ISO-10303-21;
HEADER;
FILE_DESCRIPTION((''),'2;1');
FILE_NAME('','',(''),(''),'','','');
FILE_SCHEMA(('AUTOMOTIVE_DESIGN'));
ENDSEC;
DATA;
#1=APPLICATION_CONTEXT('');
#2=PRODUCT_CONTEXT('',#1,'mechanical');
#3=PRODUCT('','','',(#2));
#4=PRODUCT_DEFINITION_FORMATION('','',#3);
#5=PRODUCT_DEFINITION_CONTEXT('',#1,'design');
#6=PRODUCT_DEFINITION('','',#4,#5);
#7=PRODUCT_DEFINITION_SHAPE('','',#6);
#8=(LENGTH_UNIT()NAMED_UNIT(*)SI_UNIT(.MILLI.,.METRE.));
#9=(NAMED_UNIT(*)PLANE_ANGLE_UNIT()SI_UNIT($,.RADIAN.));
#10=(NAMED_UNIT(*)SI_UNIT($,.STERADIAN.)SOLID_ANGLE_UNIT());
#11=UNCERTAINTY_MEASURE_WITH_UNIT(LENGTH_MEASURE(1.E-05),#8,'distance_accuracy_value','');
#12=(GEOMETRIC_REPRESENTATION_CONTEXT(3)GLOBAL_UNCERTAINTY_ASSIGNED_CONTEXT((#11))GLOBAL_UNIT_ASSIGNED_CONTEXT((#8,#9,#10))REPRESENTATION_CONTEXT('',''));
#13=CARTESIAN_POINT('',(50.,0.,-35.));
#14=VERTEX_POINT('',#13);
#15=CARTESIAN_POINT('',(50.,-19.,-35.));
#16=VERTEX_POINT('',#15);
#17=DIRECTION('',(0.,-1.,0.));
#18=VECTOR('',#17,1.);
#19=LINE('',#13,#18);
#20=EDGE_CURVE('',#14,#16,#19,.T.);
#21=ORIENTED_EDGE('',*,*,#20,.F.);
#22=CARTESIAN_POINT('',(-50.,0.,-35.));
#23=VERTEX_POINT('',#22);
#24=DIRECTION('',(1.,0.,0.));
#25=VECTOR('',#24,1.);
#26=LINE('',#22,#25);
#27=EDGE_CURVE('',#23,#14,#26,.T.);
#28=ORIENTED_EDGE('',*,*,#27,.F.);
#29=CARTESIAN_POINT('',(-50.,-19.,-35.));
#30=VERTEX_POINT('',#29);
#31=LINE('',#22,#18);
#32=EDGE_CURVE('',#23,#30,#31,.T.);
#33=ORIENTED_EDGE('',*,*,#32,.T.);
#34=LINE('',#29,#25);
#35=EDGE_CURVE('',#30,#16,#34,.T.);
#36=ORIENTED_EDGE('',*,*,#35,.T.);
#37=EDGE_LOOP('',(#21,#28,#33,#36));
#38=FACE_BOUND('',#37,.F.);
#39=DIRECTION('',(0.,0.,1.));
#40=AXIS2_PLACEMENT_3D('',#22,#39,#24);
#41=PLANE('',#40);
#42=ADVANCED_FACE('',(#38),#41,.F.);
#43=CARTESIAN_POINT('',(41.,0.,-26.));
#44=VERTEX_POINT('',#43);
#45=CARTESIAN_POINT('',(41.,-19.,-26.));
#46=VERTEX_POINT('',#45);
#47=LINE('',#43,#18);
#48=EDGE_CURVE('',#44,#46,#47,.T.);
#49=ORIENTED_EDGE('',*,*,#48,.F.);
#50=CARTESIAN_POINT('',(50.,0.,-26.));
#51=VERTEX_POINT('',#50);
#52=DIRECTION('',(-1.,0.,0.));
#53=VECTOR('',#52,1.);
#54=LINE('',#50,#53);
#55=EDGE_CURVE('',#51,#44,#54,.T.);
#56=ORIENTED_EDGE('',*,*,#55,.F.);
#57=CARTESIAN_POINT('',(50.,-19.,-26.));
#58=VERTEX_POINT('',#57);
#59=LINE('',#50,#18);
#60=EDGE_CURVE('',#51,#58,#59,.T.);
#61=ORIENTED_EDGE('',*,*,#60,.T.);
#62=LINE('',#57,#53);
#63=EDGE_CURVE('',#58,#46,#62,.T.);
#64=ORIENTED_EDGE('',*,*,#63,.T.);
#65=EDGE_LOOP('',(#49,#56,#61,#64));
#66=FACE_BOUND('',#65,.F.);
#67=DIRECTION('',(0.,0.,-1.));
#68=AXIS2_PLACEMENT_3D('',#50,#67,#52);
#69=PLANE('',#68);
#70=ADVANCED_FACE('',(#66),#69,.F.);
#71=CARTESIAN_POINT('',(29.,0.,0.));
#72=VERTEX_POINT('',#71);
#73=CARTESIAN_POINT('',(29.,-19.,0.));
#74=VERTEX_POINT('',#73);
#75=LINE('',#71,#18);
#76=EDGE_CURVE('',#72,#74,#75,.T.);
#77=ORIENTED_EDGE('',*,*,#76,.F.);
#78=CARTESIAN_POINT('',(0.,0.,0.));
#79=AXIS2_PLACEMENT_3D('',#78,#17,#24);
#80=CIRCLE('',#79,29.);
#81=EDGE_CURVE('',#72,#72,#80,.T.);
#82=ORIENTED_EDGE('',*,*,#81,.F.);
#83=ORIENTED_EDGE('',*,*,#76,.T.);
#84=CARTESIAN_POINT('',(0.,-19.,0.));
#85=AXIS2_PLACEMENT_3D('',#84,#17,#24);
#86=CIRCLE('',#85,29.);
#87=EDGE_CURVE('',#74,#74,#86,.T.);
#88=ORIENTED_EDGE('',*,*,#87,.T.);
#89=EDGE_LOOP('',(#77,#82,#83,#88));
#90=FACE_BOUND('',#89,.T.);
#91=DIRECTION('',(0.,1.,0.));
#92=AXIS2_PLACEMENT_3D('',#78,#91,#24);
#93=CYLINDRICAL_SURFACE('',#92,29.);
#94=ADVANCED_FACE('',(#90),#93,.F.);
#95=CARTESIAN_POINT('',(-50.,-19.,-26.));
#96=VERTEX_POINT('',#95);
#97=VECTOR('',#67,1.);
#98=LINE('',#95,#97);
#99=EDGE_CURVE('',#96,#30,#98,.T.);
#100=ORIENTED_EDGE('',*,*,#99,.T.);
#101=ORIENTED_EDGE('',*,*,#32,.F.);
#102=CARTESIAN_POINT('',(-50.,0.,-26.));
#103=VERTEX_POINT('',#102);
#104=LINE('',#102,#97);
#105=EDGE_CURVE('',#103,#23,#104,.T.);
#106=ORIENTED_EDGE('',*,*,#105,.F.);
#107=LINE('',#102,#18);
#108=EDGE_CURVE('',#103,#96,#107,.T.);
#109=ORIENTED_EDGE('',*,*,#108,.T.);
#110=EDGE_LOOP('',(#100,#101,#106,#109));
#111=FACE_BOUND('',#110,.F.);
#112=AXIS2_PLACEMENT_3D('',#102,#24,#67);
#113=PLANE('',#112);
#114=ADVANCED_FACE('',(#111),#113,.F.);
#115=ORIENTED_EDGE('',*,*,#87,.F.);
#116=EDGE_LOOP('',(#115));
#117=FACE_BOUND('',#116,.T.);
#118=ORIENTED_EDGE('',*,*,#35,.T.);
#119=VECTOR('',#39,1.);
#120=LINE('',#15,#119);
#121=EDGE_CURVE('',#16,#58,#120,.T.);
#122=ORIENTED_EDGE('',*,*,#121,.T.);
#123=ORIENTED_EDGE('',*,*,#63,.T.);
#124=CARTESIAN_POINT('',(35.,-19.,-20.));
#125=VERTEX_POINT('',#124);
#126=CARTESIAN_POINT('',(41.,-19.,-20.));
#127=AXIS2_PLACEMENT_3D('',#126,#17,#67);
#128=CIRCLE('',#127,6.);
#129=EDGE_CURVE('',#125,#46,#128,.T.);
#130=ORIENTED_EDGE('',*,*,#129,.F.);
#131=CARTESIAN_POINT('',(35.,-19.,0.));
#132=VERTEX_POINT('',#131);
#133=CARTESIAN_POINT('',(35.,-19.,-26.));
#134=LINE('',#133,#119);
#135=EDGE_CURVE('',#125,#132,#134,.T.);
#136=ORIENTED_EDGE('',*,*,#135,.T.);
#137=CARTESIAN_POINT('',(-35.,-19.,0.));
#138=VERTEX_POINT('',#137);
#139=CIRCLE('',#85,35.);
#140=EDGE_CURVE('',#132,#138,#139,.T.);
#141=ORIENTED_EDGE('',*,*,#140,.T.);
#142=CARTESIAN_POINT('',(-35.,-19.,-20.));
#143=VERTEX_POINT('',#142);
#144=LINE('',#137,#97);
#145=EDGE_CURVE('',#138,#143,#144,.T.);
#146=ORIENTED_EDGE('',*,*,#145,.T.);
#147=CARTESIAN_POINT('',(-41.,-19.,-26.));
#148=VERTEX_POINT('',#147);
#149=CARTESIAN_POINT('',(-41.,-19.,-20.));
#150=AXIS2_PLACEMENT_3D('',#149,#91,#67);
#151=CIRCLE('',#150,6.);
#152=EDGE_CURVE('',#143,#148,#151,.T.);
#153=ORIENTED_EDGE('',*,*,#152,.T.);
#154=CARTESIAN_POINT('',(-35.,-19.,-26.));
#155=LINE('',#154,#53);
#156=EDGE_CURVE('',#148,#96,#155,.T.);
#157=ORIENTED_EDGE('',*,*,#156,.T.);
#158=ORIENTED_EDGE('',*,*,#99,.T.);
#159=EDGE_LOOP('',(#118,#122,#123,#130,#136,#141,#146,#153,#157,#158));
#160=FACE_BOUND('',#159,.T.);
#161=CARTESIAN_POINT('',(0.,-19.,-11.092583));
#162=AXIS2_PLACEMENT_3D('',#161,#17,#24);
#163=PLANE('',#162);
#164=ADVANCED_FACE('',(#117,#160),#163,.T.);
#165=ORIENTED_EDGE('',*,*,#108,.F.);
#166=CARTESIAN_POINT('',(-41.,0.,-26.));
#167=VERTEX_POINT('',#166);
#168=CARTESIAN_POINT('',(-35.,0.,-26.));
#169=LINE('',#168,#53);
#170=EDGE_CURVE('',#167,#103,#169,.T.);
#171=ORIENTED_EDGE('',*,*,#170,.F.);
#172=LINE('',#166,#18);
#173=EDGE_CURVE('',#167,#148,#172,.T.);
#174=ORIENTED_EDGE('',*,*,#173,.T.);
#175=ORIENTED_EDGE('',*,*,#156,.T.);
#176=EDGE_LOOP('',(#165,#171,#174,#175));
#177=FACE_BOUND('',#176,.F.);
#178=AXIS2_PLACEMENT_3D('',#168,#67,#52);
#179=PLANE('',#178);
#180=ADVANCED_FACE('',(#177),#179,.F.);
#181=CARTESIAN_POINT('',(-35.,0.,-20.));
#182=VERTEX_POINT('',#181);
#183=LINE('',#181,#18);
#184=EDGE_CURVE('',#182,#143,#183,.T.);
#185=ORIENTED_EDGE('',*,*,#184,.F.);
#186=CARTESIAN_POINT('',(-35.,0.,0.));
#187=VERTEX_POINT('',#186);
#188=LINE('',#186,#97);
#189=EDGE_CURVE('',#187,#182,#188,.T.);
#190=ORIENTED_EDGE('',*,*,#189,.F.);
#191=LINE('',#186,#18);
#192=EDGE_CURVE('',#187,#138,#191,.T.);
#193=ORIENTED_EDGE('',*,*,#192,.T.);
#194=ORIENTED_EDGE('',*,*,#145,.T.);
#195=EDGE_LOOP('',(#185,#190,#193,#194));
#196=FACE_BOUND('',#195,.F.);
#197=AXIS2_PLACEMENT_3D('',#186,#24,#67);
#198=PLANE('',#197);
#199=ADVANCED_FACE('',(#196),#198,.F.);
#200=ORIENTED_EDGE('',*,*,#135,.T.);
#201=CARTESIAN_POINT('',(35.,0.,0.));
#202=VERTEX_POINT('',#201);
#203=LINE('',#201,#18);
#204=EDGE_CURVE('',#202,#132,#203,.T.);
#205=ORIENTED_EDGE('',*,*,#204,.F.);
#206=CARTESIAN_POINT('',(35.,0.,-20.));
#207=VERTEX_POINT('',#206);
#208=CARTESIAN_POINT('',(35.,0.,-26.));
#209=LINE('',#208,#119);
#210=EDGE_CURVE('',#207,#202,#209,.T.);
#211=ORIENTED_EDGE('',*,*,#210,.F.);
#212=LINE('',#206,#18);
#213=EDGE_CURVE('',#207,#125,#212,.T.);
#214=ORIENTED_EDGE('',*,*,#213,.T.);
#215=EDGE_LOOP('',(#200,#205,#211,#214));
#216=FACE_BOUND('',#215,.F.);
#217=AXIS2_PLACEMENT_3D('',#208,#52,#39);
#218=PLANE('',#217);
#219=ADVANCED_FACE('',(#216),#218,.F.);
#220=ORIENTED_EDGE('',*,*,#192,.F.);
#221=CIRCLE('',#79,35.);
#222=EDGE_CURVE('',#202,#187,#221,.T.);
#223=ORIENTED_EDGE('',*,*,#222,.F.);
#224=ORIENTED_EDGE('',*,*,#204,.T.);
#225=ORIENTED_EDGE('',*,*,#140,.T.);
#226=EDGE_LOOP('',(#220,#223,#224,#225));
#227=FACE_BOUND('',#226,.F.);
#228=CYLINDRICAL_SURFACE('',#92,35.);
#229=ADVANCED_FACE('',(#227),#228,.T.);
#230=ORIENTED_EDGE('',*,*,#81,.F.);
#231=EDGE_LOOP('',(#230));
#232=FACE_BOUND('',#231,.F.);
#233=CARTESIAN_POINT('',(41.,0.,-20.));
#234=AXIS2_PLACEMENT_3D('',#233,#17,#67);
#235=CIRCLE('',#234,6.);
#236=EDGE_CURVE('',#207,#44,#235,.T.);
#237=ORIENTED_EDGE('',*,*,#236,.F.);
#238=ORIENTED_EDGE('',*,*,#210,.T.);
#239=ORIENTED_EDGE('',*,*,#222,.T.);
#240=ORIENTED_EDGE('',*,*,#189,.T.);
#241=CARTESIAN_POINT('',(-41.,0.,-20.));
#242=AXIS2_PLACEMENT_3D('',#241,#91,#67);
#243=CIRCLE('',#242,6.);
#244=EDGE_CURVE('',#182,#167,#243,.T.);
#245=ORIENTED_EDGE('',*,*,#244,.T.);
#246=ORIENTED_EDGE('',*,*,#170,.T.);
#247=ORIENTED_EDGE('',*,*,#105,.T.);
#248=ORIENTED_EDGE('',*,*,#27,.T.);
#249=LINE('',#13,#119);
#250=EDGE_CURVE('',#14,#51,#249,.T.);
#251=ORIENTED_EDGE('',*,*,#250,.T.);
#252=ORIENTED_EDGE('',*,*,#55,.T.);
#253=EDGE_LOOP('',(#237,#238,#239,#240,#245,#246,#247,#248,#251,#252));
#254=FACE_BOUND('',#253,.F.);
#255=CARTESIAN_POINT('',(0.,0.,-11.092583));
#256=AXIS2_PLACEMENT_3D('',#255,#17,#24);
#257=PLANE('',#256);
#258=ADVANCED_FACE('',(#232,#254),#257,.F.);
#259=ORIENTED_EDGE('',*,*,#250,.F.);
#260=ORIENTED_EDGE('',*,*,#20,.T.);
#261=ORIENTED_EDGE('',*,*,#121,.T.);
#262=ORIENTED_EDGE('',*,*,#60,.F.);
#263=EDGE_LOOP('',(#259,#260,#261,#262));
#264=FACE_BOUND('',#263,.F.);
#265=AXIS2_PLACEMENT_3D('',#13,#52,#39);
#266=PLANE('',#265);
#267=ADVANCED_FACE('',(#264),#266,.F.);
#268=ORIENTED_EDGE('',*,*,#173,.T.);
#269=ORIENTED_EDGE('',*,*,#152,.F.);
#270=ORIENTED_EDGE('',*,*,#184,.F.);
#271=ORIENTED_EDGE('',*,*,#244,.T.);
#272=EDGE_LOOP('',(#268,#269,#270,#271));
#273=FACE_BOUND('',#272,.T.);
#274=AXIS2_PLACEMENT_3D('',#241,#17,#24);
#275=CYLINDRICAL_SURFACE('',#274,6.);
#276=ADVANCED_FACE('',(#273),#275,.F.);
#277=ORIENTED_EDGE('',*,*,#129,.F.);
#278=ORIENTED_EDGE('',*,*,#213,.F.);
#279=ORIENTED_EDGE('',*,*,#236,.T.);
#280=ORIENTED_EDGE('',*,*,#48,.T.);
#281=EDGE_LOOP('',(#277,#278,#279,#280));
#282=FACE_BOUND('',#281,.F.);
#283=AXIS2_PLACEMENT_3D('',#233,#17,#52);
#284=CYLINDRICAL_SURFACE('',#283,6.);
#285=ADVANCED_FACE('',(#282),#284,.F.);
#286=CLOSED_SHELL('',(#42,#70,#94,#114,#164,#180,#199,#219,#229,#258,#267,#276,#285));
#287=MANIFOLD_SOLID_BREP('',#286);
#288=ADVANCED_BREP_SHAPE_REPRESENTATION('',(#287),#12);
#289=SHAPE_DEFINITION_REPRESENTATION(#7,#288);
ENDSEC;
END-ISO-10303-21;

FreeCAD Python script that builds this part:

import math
import FreeCAD as App
import Part
import Sketcher


def edges_at(feature, points):
    """Names of the edges that pass closest to the given points."""
    edges = feature.Shape.Edges
    near = lambda p: min(range(len(edges)), key=lambda i: edges[i].distToShape(Part.Vertex(*p))[0])
    return sorted({f"Edge{near(p) + 1}" for p in points})

doc = App.newDocument("Part")
body = doc.addObject("PartDesign::Body", "Body")

# Sketch on XZ plane
sketch1 = doc.addObject("Sketcher::SketchObject", "Sketch")
body.addObject(sketch1)
sketch1.AttachmentSupport = (doc.XZ_Plane, [""])
sketch1.MapMode = "FlatFace"
sketch1.addGeometry([
    Part.LineSegment(App.Vector(35, -26, 0), App.Vector(35, 0, 0)),  # 0
    Part.ArcOfCircle(Part.Circle(App.Vector(0, 0, 0), App.Vector(0, 0, 1), 35), math.radians(0), math.radians(180)),  # 1
    Part.LineSegment(App.Vector(-35, 0, 0), App.Vector(-35, -26, 0)),  # 2
    Part.LineSegment(App.Vector(-35, -26, 0), App.Vector(-50, -26, 0)),  # 3
    Part.LineSegment(App.Vector(-50, -26, 0), App.Vector(-50, -35, 0)),  # 4
    Part.LineSegment(App.Vector(-50, -35, 0), App.Vector(50, -35, 0)),  # 5
    Part.LineSegment(App.Vector(50, -35, 0), App.Vector(50, -26, 0)),  # 6
    Part.LineSegment(App.Vector(50, -26, 0), App.Vector(35, -26, 0)),  # 7
    Part.Circle(App.Vector(0, 0, 0), App.Vector(0, 0, 1), 29),  # 8
], False)
sketch1.addConstraint([
    Sketcher.Constraint("Tangent", 0, 2, 1, 1),
    Sketcher.Constraint("Tangent", 1, 2, 2, 1),
    Sketcher.Constraint("Coincident", 2, 2, 3, 1),
    Sketcher.Constraint("Coincident", 3, 2, 4, 1),
    Sketcher.Constraint("Coincident", 4, 2, 5, 1),
    Sketcher.Constraint("Coincident", 5, 2, 6, 1),
    Sketcher.Constraint("Coincident", 6, 2, 7, 1),
    Sketcher.Constraint("Coincident", 7, 2, 0, 1),
    Sketcher.Constraint("Vertical", 0),
    Sketcher.Constraint("Vertical", 2),
    Sketcher.Constraint("Horizontal", 3),
    Sketcher.Constraint("Vertical", 4),
    Sketcher.Constraint("Horizontal", 5),
    Sketcher.Constraint("Vertical", 6),
    Sketcher.Constraint("Horizontal", 7),
    Sketcher.Constraint("Coincident", 1, 3, -1, 1),
    Sketcher.Constraint("Coincident", 8, 3, -1, 1),
    Sketcher.Constraint("Symmetric", 3, 2, 6, 2, -2),
    Sketcher.Constraint("Diameter", 8, 58.0),
    Sketcher.Constraint("Radius", 1, 35.0),
    Sketcher.Constraint("DistanceX", 3, 2, 3, 1, 15.0),
    Sketcher.Constraint("DistanceY", 0, 1, 0, 2, 26.0),
    Sketcher.Constraint("DistanceY", 4, 2, 4, 1, 9.0),
])
pad1 = doc.addObject("PartDesign::Pad", "Pad")
body.addObject(pad1)
pad1.Profile = sketch1
pad1.Length = 19
doc.recompute()

fillet = doc.addObject("PartDesign::Fillet", "Fillet")
body.addObject(fillet)
fillet.Base = (pad1, edges_at(pad1, [(-35, -9.5, -26), (35, -9.5, -26)]))
fillet.Radius = 6

doc.recompute()
